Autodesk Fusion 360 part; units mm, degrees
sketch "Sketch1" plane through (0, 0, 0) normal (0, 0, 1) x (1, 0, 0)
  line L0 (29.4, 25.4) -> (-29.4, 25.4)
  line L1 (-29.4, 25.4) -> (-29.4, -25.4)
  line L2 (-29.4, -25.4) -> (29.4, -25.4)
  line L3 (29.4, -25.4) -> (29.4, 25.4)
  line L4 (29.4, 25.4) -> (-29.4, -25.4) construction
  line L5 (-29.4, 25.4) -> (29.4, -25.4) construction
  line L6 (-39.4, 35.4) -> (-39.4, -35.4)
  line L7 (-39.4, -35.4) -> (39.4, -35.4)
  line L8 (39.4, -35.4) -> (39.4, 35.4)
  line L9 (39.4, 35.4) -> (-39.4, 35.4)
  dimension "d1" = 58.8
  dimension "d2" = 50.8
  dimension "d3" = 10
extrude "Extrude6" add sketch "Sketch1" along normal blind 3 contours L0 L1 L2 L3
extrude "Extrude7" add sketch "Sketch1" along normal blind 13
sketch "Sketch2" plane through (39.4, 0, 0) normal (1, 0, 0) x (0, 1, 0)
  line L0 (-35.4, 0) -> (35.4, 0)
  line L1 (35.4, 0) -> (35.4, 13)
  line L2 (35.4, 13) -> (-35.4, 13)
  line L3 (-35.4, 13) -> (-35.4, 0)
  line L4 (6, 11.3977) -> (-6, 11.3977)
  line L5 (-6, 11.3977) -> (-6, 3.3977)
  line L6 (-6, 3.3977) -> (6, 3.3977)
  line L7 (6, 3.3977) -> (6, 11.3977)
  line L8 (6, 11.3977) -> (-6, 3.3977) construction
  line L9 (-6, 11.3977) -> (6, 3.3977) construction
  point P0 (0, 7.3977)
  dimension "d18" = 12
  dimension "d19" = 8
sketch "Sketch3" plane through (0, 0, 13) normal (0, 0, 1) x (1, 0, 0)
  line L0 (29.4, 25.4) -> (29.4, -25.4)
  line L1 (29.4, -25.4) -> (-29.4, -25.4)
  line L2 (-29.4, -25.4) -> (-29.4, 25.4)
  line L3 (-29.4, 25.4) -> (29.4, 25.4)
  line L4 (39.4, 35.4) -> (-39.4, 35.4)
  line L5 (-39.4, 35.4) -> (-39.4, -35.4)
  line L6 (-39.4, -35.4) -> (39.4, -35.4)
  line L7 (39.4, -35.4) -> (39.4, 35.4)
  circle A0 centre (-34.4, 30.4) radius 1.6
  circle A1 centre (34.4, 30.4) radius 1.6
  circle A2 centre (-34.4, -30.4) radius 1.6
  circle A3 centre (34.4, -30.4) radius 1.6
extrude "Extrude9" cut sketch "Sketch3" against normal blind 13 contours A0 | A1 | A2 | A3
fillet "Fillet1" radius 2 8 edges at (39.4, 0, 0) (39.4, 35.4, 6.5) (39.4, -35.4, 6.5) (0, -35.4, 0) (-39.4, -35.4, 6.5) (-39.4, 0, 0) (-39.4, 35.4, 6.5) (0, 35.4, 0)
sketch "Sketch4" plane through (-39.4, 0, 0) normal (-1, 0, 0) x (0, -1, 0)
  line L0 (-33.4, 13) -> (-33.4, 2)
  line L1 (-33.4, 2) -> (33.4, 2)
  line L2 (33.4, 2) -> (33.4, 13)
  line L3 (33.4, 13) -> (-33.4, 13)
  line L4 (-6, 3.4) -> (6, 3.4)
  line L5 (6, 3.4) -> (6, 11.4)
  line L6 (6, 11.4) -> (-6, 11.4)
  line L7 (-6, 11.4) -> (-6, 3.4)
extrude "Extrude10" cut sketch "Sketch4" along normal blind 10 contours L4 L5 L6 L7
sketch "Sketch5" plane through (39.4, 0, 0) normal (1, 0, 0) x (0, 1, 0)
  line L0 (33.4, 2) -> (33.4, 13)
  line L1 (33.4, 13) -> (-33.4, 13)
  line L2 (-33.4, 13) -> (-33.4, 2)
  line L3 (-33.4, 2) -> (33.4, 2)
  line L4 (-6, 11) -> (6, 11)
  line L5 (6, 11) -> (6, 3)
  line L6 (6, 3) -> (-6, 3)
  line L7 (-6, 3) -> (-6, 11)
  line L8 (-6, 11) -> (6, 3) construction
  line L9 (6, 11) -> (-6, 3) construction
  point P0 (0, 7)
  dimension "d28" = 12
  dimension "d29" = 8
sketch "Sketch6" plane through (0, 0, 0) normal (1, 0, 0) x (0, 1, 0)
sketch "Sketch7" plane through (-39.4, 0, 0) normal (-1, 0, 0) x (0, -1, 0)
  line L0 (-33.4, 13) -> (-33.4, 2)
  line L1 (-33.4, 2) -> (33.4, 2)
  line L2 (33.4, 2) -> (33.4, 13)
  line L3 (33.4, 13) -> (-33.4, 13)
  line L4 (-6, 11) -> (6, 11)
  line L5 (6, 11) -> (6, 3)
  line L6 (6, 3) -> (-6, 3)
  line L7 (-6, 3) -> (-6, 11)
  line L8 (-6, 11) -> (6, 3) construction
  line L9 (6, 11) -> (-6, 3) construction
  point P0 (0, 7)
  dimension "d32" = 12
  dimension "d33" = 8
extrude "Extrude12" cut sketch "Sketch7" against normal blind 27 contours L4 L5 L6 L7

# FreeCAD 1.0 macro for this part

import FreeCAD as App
import Part
import Sketcher
Q = App.Units.Quantity


def edges_at(feature, points):
    """Names of the edges that pass closest to the given points."""
    edges = feature.Shape.Edges
    near = lambda p: min(range(len(edges)), key=lambda i: edges[i].distToShape(Part.Vertex(*p))[0])
    return sorted({f"Edge{near(p) + 1}" for p in points})


def add_polygon(sketch, points):
    """Adds a closed chain of lines whose ends are joined by coincident constraints."""
    first, n = sketch.GeometryCount, len(points)
    for a, b in zip(points, points[1:] + points[:1]):
        sketch.addGeometry(Part.LineSegment(App.Vector(*a, 0), App.Vector(*b, 0)), False)
    for i in range(n):
        sketch.addConstraint(Sketcher.Constraint("Coincident", first + i, 2, first + (i + 1) % n, 1))

doc = App.newDocument("Part")
body = doc.addObject("PartDesign::Body", "Body")

# Sketch on XY plane
sketch1 = body.newObject("Sketcher::SketchObject", "Sketch")
sketch1.AttachmentSupport = (doc.getObject("XY_Plane"), [""])
sketch1.MapMode = "FlatFace"
add_polygon(sketch1, [(29, -25), (29, 25), (-29, 25), (-29, -25)])  # lines 0-3
sketch1.addConstraint(Sketcher.Constraint("Vertical", 0))
sketch1.addConstraint(Sketcher.Constraint("Horizontal", 1))
sketch1.addConstraint(Sketcher.Constraint("Vertical", 2))
sketch1.addConstraint(Sketcher.Constraint("Horizontal", 3))
sketch1.addConstraint(Sketcher.Constraint("Symmetric", 0, 2, 2, 2, -1, 1))
sketch1.addConstraint(Sketcher.Constraint("DistanceX", 1, 2, 1, 1, Q("58.8 mm")))
sketch1.addConstraint(Sketcher.Constraint("DistanceY", 0, 1, 0, 2, Q("50.8 mm")))
pad1 = body.newObject("PartDesign::Pad", "Pad")
pad1.Profile = sketch1
pad1.Length = 3

# Sketch on XY plane
sketch2 = body.newObject("Sketcher::SketchObject", "Sketch001")
sketch2.AttachmentSupport = (doc.getObject("XY_Plane"), [""])
sketch2.MapMode = "FlatFace"
add_polygon(sketch2, [(39, 35), (-39, 35), (-39, -35), (39, -35)])  # lines 0-3
add_polygon(sketch2, [(-29, 25), (29, 25), (29, -25), (-29, -25)])  # lines 4-7
sketch2.addConstraint(Sketcher.Constraint("Horizontal", 0))
sketch2.addConstraint(Sketcher.Constraint("Vertical", 1))
sketch2.addConstraint(Sketcher.Constraint("Horizontal", 2))
sketch2.addConstraint(Sketcher.Constraint("Vertical", 3))
sketch2.addConstraint(Sketcher.Constraint("Horizontal", 4))
sketch2.addConstraint(Sketcher.Constraint("Vertical", 5))
sketch2.addConstraint(Sketcher.Constraint("Horizontal", 6))
sketch2.addConstraint(Sketcher.Constraint("Vertical", 7))
sketch2.addConstraint(Sketcher.Constraint("Symmetric", 0, 2, 2, 2, -1, 1))
sketch2.addConstraint(Sketcher.Constraint("Symmetric", 4, 2, 6, 2, -1, 1))
sketch2.addConstraint(Sketcher.Constraint("DistanceX", 4, 1, 4, 2, Q("58.8 mm")))
sketch2.addConstraint(Sketcher.Constraint("DistanceY", 5, 2, 5, 1, Q("50.8 mm")))
sketch2.addConstraint(Sketcher.Constraint("DistanceX", 4, 2, 3, 2, Q("10 mm")))
sketch2.addConstraint(Sketcher.Constraint("DistanceY", 4, 2, 3, 2, Q("10 mm")))
pad2 = body.newObject("PartDesign::Pad", "Pad001")
pad2.Profile = sketch2
pad2.Length = 13

# Sketch on XY plane
sketch3 = body.newObject("Sketcher::SketchObject", "Sketch002")
sketch3.AttachmentSupport = (doc.getObject("XY_Plane"), [""])
sketch3.MapMode = "FlatFace"
sketch3.AttachmentOffset = App.Placement(App.Vector(0, 0, 13), App.Rotation())
sketch3.addGeometry(Part.Circle(App.Vector(-34.4, 30.4, 0), App.Vector(0, 0, 1), 1.6), False)
sketch3.addGeometry(Part.Circle(App.Vector(34.4, 30.4, 0), App.Vector(0, 0, 1), 1.6), False)
sketch3.addGeometry(Part.Circle(App.Vector(-34.4, -30.4, 0), App.Vector(0, 0, 1), 1.6), False)
sketch3.addGeometry(Part.Circle(App.Vector(34.4, -30.4, 0), App.Vector(0, 0, 1), 1.6), False)
sketch3.addConstraint(Sketcher.Constraint("Equal", 0, 1))
sketch3.addConstraint(Sketcher.Constraint("Equal", 1, 2))
sketch3.addConstraint(Sketcher.Constraint("Equal", 2, 3))
sketch3.addConstraint(Sketcher.Constraint("Symmetric", 1, 3, 2, 3, -1, 1))
sketch3.addConstraint(Sketcher.Constraint("Symmetric", 0, 3, 3, 3, -1, 1))
sketch3.addConstraint(Sketcher.Constraint("Symmetric", 0, 3, 1, 3, -2))
sketch3.addConstraint(Sketcher.Constraint("Diameter", 0, Q("3.2 mm")))
sketch3.addConstraint(Sketcher.Constraint("DistanceX", 0, 3, -1, 1, Q("34.4 mm")))
sketch3.addConstraint(Sketcher.Constraint("DistanceY", -1, 1, 0, 3, Q("30.4 mm")))
pocket1 = body.newObject("PartDesign::Pocket", "Pocket")
pocket1.Profile = sketch3
pocket1.Length = 13
doc.recompute()

fillet = body.newObject("PartDesign::Fillet", "Fillet")
fillet.Base = (pocket1, edges_at(pocket1, [
    (39.4, 0, 0),
    (39.4, 35.4, 6.5),
    (39.4, -35.4, 6.5),
    (0, -35.4, 0),
    (-39.4, -35.4, 6.5),
    (-39.4, 0, 0),
    (-39.4, 35.4, 6.5),
    (0, 35.4, 0),
]))
fillet.Radius = 2

# Sketch on YZ plane
sketch4 = body.newObject("Sketcher::SketchObject", "Sketch003")
sketch4.AttachmentSupport = (doc.getObject("YZ_Plane"), [""])
sketch4.MapMode = "FlatFace"
sketch4.AttachmentOffset = App.Placement(App.Vector(0, 0, -39.4), App.Rotation())
add_polygon(sketch4, [(6, 11), (6, 3), (-6, 3), (-6, 11)])  # lines 0-3
sketch4.addConstraint(Sketcher.Constraint("Vertical", 0))
sketch4.addConstraint(Sketcher.Constraint("Horizontal", 1))
sketch4.addConstraint(Sketcher.Constraint("Vertical", 2))
sketch4.addConstraint(Sketcher.Constraint("Horizontal", 3))
sketch4.addConstraint(Sketcher.Constraint("DistanceX", 1, 2, 1, 1, Q("12 mm")))
sketch4.addConstraint(Sketcher.Constraint("DistanceY", 0, 2, 0, 1, Q("8 mm")))
sketch4.addConstraint(Sketcher.Constraint("DistanceX", -1, 1, 0, 2, Q("6 mm")))
sketch4.addConstraint(Sketcher.Constraint("DistanceY", -1, 1, 0, 2, Q("3.4 mm")))
pocket2 = body.newObject("PartDesign::Pocket", "Pocket001")
pocket2.Profile = sketch4
pocket2.Length = 10

# Sketch on YZ plane
sketch5 = body.newObject("Sketcher::SketchObject", "Sketch004")
sketch5.AttachmentSupport = (doc.getObject("YZ_Plane"), [""])
sketch5.MapMode = "FlatFace"
sketch5.AttachmentOffset = App.Placement(App.Vector(0, 0, -39.4), App.Rotation())
add_polygon(sketch5, [(-6, 11), (6, 11), (6, 3), (-6, 3)])  # lines 0-3
sketch5.addConstraint(Sketcher.Constraint("Horizontal", 0))
sketch5.addConstraint(Sketcher.Constraint("Vertical", 1))
sketch5.addConstraint(Sketcher.Constraint("Horizontal", 2))
sketch5.addConstraint(Sketcher.Constraint("Vertical", 3))
sketch5.addConstraint(Sketcher.Constraint("DistanceX", 0, 1, 0, 2, Q("12 mm")))
sketch5.addConstraint(Sketcher.Constraint("DistanceY", 1, 2, 1, 1, Q("8 mm")))
sketch5.addConstraint(Sketcher.Constraint("DistanceX", -1, 1, 0, 2, Q("6 mm")))
sketch5.addConstraint(Sketcher.Constraint("DistanceY", -1, 1, 0, 2, Q("11 mm")))
pocket3 = body.newObject("PartDesign::Pocket", "Pocket002")
pocket3.Profile = sketch5
pocket3.Length = 27
pocket3.Reversed = True

doc.recompute()
